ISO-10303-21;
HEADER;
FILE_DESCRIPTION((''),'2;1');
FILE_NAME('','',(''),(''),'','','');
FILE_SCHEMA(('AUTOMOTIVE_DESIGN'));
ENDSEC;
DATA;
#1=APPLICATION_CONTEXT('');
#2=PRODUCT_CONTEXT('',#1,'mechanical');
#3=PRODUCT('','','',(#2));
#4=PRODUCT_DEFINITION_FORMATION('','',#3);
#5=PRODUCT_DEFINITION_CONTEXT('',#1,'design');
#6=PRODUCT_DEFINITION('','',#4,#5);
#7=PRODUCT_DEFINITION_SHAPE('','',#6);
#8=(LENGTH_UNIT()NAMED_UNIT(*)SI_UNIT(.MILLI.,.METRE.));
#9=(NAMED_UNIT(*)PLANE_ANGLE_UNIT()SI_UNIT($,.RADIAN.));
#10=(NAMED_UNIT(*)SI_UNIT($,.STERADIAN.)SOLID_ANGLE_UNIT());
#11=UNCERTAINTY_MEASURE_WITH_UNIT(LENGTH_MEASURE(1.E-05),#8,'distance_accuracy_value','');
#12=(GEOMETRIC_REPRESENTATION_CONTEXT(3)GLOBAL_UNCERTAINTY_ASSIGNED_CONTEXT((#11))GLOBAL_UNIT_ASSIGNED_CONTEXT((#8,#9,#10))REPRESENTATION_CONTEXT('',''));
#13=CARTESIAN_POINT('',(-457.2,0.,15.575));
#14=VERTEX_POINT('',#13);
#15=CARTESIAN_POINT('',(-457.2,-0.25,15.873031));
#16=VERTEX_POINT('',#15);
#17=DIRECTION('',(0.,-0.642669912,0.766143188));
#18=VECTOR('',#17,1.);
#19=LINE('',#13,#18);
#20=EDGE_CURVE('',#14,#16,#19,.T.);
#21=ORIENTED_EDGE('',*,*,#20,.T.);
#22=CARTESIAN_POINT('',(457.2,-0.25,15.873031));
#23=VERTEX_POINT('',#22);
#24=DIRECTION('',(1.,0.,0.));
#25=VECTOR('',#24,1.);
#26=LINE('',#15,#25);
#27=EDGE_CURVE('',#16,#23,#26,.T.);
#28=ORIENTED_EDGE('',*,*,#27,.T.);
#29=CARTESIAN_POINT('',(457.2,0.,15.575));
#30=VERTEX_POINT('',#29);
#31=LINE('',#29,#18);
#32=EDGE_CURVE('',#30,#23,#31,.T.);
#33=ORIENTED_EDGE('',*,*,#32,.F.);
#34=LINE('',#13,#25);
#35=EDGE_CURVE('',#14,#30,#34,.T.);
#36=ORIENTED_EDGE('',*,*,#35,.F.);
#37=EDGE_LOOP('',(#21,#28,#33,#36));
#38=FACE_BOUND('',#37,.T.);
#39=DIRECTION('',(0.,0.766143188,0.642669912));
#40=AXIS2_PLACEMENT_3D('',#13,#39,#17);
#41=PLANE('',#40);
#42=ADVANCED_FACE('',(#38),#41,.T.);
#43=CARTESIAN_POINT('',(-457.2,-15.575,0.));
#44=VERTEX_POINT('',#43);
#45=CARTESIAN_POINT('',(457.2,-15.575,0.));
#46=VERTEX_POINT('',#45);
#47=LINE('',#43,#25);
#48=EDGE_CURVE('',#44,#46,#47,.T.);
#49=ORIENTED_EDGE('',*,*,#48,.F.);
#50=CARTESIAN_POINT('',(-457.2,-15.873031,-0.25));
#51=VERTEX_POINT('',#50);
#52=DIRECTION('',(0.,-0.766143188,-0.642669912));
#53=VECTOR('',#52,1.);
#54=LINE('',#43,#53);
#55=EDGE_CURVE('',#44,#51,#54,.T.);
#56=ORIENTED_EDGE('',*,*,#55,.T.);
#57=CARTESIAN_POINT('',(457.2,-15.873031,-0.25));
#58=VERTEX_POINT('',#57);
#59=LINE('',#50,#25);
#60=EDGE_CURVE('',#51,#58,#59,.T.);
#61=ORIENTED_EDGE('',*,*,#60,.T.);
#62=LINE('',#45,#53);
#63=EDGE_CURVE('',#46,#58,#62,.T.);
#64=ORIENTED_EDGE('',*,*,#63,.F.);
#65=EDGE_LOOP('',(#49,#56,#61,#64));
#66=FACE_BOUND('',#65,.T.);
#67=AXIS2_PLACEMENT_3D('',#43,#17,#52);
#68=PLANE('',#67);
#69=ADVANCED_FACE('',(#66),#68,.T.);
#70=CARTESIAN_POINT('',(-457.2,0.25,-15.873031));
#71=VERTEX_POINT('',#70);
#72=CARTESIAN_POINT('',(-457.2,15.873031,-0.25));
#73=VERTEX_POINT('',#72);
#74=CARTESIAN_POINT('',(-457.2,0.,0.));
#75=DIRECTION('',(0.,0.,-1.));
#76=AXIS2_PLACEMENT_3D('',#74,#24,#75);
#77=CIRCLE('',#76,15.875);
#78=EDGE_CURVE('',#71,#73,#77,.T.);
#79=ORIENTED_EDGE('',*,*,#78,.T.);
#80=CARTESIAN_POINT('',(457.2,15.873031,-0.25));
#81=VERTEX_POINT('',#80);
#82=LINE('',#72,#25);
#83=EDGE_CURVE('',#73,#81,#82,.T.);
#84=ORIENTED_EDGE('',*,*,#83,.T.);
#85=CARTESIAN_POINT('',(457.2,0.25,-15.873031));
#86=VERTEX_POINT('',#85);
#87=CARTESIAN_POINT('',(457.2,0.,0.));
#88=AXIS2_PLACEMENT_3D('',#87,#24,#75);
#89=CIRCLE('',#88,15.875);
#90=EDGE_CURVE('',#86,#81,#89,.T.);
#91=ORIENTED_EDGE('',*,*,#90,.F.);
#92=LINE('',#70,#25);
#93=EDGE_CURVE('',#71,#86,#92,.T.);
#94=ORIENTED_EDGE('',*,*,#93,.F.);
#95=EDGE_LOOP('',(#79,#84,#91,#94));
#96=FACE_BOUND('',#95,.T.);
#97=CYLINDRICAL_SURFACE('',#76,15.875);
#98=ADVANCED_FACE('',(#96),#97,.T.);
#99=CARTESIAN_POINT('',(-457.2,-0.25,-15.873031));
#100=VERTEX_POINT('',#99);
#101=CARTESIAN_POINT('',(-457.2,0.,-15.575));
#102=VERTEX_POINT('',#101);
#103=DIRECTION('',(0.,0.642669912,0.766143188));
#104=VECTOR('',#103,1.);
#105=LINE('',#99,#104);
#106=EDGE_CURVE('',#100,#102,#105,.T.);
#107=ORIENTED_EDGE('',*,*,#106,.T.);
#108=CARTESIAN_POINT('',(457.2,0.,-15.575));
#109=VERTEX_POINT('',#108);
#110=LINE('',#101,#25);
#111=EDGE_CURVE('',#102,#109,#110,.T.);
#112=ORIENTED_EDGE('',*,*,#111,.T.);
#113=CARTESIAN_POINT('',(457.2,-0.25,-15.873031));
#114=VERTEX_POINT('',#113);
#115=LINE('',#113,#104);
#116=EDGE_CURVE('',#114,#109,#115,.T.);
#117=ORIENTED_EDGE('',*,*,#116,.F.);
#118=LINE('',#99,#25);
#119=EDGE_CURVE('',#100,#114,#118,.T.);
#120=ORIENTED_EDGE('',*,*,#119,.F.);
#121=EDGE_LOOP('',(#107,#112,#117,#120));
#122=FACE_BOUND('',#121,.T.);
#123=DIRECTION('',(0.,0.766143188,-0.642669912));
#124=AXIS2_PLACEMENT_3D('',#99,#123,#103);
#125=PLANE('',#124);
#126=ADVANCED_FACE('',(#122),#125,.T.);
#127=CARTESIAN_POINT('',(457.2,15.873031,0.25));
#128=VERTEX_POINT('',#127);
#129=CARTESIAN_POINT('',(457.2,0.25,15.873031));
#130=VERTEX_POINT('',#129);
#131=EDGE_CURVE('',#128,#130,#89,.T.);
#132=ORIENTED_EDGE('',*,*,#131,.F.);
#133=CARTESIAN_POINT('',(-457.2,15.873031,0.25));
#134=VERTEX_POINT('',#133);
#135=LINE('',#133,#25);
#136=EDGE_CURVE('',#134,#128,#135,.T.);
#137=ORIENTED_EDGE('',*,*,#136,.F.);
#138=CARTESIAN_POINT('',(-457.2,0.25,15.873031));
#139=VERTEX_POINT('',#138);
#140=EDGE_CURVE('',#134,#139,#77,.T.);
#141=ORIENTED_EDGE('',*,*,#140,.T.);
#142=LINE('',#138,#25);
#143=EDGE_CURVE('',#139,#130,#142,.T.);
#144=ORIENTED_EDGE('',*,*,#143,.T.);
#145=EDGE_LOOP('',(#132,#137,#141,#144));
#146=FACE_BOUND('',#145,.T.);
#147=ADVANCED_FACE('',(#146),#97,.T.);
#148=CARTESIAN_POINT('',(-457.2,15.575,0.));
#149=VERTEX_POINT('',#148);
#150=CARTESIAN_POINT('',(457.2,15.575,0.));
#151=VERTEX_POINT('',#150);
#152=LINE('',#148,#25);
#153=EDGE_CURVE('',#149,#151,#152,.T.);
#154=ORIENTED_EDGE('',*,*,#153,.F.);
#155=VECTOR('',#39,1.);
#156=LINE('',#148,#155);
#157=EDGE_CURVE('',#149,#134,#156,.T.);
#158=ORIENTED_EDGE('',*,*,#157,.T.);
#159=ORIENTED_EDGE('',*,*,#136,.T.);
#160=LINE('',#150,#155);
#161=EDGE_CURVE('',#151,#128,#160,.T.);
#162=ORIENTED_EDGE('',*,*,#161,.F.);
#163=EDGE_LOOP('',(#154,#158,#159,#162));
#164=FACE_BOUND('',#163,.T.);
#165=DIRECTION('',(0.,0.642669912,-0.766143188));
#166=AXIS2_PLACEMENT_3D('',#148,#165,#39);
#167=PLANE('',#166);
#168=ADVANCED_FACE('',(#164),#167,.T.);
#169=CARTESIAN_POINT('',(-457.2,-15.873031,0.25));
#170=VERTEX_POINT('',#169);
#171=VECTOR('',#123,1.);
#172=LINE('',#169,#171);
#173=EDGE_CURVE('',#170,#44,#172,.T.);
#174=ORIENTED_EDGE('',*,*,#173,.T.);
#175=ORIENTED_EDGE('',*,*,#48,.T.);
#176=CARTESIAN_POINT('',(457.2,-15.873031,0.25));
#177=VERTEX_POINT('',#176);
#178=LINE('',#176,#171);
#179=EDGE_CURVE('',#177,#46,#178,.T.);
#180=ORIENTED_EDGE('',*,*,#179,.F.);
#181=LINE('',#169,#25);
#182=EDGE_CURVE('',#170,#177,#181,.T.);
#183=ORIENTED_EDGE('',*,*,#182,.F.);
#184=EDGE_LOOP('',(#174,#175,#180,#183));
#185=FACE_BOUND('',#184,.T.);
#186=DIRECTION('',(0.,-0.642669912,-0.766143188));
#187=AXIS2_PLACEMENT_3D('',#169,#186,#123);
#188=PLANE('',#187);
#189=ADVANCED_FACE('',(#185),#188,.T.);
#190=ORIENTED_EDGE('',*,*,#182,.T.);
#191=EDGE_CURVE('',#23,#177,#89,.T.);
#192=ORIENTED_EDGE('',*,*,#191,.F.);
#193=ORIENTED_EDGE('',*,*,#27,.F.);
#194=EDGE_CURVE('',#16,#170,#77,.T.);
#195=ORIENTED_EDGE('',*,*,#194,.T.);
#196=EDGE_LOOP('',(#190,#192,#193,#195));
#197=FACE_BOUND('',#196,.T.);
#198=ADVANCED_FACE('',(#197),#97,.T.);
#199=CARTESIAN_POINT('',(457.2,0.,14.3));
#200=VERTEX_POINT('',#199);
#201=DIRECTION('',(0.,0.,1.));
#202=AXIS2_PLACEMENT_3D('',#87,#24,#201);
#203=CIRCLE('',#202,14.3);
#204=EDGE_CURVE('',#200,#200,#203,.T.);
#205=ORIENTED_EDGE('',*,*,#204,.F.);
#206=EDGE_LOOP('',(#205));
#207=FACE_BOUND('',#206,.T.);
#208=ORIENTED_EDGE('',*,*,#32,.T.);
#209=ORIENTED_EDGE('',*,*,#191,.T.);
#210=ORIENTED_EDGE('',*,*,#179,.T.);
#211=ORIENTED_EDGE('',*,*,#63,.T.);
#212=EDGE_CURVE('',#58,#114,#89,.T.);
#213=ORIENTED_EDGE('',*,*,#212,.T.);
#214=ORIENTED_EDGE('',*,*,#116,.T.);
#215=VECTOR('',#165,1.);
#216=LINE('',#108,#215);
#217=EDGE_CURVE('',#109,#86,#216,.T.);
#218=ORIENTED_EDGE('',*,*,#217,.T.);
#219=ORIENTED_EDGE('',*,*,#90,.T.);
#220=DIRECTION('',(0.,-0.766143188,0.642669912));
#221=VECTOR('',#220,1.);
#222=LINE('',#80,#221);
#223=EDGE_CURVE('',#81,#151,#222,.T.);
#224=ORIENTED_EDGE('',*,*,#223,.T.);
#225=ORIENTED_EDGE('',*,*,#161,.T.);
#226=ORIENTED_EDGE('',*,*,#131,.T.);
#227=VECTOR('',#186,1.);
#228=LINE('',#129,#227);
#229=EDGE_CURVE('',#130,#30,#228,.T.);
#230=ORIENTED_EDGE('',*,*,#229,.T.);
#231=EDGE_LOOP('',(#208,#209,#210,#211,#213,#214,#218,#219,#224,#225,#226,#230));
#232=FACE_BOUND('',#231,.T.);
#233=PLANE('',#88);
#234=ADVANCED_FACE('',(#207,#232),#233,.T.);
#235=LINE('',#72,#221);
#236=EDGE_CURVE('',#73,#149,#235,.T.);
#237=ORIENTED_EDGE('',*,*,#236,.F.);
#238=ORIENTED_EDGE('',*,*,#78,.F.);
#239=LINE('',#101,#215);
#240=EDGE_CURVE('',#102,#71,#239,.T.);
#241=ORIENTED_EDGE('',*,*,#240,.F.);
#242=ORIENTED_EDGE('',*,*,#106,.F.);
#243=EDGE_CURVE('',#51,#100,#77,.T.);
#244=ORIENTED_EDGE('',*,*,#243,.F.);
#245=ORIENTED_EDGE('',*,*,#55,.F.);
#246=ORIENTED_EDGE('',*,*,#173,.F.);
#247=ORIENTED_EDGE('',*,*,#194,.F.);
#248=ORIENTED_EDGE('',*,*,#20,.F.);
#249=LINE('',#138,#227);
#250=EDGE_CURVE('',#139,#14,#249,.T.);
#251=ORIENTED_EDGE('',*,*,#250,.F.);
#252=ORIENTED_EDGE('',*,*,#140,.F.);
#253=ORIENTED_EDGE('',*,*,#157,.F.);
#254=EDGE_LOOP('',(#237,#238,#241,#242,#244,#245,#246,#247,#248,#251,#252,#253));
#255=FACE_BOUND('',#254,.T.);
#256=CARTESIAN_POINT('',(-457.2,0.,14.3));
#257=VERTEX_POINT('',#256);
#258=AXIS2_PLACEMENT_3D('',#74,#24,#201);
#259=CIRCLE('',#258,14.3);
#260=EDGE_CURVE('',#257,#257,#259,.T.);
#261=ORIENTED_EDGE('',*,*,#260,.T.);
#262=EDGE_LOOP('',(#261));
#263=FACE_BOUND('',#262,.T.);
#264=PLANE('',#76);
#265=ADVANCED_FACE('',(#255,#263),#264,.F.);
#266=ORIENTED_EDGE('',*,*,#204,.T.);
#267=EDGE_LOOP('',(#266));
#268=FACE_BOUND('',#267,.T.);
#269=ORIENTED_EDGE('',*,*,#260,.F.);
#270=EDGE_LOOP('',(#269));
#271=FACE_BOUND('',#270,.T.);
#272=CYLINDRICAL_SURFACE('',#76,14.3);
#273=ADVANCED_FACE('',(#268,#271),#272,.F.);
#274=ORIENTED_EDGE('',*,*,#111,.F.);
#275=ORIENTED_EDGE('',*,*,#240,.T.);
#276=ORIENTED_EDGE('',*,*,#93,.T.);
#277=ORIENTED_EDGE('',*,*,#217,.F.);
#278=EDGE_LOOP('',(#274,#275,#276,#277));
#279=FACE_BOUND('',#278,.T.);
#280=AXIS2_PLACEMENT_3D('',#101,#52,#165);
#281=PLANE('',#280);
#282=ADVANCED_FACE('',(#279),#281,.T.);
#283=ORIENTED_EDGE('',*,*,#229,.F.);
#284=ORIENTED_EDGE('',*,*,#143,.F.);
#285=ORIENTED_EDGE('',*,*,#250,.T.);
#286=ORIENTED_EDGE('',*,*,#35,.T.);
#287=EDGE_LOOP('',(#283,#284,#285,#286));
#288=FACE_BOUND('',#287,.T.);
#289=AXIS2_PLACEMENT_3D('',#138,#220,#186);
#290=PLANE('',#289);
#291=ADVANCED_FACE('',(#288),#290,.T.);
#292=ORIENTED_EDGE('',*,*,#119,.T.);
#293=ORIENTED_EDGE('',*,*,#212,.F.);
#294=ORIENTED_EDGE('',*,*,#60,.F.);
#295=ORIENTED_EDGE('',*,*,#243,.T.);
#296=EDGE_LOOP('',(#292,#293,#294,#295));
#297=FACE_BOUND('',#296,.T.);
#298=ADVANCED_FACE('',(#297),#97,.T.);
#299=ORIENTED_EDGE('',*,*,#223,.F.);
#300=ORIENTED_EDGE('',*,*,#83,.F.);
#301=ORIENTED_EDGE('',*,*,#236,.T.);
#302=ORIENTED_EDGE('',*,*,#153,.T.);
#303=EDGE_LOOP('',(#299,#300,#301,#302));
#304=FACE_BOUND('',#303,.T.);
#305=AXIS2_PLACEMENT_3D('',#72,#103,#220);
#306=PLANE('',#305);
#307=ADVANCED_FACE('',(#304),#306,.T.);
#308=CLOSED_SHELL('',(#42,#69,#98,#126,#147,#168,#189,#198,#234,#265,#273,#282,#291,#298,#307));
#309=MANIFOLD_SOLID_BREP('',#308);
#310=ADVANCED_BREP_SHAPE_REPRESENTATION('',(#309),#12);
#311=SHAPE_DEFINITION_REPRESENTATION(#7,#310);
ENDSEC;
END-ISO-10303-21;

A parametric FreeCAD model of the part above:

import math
import FreeCAD as App
import Part
import Sketcher
from FreeCAD import Vector
Q = App.Units.Quantity

doc = App.newDocument("Part")
body = doc.addObject("PartDesign::Body", "Body")

sketch1 = doc.addObject("Sketcher::SketchObject", "Sketch")
body.addObject(sketch1)
sketch1.AttachmentSupport = (doc.YZ_Plane, [""])
sketch1.MapMode = "FlatFace"
sketch1.AttachmentOffset = App.Placement(Vector(0, 0, 18 * 25.4), App.Rotation())
sketch1.addGeometry([
    Part.LineSegment(Vector(-15.87, 0.25, 0), Vector(-15.57, 0, 0)),
    Part.LineSegment(Vector(-15.57, 0, 0), Vector(-15.87, -0.25, 0)),
    Part.ArcOfCircle(Part.Circle(Vector(0, 0, 0), Vector(0, 0, 1), 15.88), math.radians(-179), math.radians(-91)),
    Part.LineSegment(Vector(-0.25, -15.87, 0), Vector(0, -15.57, 0)),
    Part.LineSegment(Vector(0, -15.57, 0), Vector(0.25, -15.87, 0)),
    Part.ArcOfCircle(Part.Circle(Vector(0, 0, 0), Vector(0, 0, 1), 15.88), math.radians(-89), math.radians(-1)),
    Part.LineSegment(Vector(15.87, -0.25, 0), Vector(15.57, 0, 0)),
    Part.LineSegment(Vector(15.57, 0, 0), Vector(15.87, 0.25, 0)),
    Part.ArcOfCircle(Part.Circle(Vector(0, 0, 0), Vector(0, 0, 1), 15.88), math.radians(1), math.radians(89)),
    Part.LineSegment(Vector(0.25, 15.87, 0), Vector(0, 15.57, 0)),
    Part.LineSegment(Vector(0, 15.57, 0), Vector(-0.25, 15.87, 0)),
    Part.ArcOfCircle(Part.Circle(Vector(0, 0, 0), Vector(0, 0, 1), 15.88), math.radians(91), math.radians(179)),
    Part.Circle(Vector(0, 0, 0), Vector(0, 0, 1), 14.3),
], False)
sketch1.addConstraint([
    Sketcher.Constraint("Coincident", 0, 2, 1, 1),
    Sketcher.Constraint("Coincident", 1, 2, 2, 1),
    Sketcher.Constraint("Coincident", 2, 2, 3, 1),
    Sketcher.Constraint("Coincident", 3, 2, 4, 1),
    Sketcher.Constraint("Coincident", 4, 2, 5, 1),
    Sketcher.Constraint("Coincident", 5, 2, 6, 1),
    Sketcher.Constraint("Coincident", 6, 2, 7, 1),
    Sketcher.Constraint("Coincident", 7, 2, 8, 1),
    Sketcher.Constraint("Coincident", 8, 2, 9, 1),
    Sketcher.Constraint("Coincident", 9, 2, 10, 1),
    Sketcher.Constraint("Coincident", 10, 2, 11, 1),
    Sketcher.Constraint("Coincident", 11, 2, 0, 1),
    Sketcher.Constraint("Coincident", 2, 3, -1, 1),
    Sketcher.Constraint("Coincident", 5, 3, -1, 1),
    Sketcher.Constraint("Coincident", 8, 3, -1, 1),
    Sketcher.Constraint("Coincident", 11, 3, -1, 1),
    Sketcher.Constraint("Coincident", 12, 3, -1, 1),
    Sketcher.Constraint("Equal", 2, 5),
    Sketcher.Constraint("Equal", 5, 8),
    Sketcher.Constraint("Equal", 8, 11),
    Sketcher.Constraint("Symmetric", 0, 2, 6, 2, -1, 1),
    Sketcher.Constraint("Symmetric", 3, 2, 9, 2, -1, 1),
    Sketcher.Constraint("PointOnObject", 0, 2, -1),
    Sketcher.Constraint("PointOnObject", 3, 2, -2),
    Sketcher.Constraint("Perpendicular", 0, 3),
    Sketcher.Constraint("Perpendicular", 1, 4),
    Sketcher.Constraint("Perpendicular", 3, 6),
    Sketcher.Constraint("Perpendicular", 4, 7),
    Sketcher.Constraint("Perpendicular", 6, 9),
    Sketcher.Constraint("Perpendicular", 7, 10),
    Sketcher.Constraint("Horizontal", 2, 2, 4, 2),
    Sketcher.Constraint("Equal", 1, 3),
    Sketcher.Constraint("Radius", 2, Q("0.625 in")),
    Sketcher.Constraint("Diameter", 12, 28.6),
    Sketcher.Constraint("DistanceX", 0, 2, -1, 1, 15.575),
    Sketcher.Constraint("DistanceY", 1, 2, -1, 1, 0.25),
])
pad1 = doc.addObject("PartDesign::Pad", "Pad")
body.addObject(pad1)
pad1.Profile = sketch1
pad1.Length = Q("36 in")
pad1.Reversed = True

doc.recompute()
